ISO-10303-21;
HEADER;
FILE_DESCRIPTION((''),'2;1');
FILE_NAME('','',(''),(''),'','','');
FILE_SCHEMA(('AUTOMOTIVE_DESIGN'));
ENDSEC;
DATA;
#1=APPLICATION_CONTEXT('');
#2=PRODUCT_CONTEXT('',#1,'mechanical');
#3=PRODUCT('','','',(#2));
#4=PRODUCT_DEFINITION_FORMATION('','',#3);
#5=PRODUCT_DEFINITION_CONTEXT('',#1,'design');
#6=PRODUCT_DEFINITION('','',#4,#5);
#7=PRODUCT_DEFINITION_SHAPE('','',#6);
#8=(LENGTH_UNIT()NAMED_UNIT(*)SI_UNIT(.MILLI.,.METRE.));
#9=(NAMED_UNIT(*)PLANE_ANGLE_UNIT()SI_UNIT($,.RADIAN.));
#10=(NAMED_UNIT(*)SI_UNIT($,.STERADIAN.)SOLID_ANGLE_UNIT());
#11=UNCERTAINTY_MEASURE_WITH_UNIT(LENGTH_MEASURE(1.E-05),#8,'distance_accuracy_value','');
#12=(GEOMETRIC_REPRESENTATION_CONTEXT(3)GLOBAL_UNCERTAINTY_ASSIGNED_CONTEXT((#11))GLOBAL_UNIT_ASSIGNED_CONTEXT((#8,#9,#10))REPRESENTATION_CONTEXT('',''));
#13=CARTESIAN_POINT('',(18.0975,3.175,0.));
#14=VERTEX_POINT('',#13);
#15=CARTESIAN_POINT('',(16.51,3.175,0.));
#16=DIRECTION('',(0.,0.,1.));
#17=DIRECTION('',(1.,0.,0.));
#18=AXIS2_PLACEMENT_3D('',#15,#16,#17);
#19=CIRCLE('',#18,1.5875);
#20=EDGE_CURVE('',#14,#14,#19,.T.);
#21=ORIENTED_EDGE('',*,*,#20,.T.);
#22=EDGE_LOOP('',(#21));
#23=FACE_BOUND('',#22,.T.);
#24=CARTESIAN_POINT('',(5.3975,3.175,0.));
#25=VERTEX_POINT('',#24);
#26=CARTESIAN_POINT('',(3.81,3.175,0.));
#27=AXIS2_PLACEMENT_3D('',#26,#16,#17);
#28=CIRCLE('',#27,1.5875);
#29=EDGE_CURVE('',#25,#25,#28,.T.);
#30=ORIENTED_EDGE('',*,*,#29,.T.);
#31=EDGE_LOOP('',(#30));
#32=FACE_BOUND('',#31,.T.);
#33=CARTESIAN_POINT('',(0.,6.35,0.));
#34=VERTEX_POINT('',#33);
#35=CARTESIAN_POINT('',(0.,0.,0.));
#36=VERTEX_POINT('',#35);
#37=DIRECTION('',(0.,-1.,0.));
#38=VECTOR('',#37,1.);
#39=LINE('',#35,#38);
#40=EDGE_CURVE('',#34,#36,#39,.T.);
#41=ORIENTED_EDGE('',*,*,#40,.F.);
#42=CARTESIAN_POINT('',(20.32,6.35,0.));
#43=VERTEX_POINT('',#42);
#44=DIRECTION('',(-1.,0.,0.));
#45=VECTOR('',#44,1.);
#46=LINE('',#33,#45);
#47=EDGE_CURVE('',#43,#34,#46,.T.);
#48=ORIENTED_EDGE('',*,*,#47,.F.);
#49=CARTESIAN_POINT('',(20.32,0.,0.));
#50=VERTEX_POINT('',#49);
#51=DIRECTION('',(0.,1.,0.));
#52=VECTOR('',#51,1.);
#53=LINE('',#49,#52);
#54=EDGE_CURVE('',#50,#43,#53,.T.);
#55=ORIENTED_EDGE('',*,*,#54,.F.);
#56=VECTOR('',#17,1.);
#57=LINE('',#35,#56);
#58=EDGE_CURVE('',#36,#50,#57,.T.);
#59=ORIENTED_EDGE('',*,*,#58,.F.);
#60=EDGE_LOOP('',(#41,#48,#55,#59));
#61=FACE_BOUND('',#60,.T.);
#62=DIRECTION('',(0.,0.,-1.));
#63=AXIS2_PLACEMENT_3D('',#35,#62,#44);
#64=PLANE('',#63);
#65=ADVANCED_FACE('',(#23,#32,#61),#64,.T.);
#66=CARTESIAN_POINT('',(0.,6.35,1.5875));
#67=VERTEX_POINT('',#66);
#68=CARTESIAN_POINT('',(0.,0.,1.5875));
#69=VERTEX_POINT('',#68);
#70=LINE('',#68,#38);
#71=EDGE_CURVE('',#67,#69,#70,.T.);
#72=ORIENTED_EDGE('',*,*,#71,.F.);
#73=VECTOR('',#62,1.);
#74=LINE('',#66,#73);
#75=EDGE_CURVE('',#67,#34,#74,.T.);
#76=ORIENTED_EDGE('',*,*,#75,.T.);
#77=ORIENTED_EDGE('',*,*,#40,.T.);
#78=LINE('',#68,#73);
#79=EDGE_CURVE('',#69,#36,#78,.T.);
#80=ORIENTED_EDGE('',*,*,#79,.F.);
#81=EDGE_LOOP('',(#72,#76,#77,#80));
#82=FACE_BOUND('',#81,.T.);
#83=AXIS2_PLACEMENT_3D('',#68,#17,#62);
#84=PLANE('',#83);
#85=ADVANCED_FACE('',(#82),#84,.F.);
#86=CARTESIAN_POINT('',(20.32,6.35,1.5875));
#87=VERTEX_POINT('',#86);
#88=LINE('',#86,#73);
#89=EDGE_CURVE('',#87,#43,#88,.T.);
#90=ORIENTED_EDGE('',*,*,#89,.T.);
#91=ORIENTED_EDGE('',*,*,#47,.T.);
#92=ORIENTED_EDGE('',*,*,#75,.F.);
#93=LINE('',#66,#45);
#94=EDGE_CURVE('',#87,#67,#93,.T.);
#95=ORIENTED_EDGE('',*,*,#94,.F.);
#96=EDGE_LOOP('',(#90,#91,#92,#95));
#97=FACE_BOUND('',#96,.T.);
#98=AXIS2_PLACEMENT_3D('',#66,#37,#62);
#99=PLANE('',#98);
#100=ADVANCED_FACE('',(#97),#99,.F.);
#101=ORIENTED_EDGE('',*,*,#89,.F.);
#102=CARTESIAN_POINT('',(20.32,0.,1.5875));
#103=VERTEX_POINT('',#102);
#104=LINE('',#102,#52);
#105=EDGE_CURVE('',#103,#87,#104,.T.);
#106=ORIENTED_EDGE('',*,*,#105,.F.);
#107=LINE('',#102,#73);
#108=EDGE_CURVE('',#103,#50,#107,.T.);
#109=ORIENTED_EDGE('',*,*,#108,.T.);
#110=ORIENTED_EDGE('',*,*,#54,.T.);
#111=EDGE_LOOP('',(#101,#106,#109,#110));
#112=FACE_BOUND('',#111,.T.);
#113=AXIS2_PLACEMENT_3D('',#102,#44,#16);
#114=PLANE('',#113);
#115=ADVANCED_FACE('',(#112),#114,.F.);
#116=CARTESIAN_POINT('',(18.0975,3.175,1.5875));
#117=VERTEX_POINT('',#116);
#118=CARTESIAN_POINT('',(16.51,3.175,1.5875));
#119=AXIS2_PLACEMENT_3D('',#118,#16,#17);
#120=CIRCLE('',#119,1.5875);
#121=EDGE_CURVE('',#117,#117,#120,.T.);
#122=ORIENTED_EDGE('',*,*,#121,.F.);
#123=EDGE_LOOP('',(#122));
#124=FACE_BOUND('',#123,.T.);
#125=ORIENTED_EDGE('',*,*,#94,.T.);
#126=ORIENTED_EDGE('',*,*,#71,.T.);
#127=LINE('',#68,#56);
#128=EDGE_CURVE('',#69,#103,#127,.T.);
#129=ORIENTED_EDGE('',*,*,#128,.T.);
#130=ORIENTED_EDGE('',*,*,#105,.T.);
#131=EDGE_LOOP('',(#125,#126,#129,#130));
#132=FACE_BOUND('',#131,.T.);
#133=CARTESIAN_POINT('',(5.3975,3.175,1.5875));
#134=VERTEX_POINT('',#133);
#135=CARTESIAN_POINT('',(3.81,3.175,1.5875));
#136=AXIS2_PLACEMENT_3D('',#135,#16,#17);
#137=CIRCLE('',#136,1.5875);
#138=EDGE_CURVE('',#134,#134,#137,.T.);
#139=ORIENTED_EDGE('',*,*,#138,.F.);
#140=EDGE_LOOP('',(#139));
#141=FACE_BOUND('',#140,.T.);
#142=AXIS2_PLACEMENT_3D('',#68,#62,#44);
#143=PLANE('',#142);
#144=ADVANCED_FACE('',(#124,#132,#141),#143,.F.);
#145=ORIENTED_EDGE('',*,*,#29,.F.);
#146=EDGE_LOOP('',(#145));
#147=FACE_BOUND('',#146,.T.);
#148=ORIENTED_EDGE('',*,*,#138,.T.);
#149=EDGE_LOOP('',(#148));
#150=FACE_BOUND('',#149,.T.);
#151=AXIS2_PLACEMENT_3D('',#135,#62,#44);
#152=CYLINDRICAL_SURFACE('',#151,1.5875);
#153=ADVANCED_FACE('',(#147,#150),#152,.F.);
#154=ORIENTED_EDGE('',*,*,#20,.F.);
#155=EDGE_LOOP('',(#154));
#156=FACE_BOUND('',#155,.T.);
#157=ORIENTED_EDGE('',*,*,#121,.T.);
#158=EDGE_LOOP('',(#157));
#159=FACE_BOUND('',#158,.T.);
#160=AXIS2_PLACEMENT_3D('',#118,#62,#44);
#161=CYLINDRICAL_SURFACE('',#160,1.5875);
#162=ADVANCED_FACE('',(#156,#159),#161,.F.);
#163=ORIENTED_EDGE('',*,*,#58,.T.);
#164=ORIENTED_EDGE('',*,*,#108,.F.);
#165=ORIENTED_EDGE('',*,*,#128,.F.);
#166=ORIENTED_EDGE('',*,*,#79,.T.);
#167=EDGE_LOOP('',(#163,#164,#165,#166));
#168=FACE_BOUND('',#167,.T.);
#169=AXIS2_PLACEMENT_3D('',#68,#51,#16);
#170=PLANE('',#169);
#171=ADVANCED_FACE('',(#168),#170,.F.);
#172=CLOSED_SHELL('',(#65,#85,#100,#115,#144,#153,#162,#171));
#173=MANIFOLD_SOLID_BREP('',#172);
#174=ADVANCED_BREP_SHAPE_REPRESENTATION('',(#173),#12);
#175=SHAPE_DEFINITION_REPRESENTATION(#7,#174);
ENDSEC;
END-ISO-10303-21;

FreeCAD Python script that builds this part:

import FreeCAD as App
import Part
import Sketcher
Q = App.Units.Quantity

doc = App.newDocument("Part")
params = doc.addObject("Spreadsheet::Sheet", "Params")
for row, (alias, value) in enumerate([
    ("sketch1_diameter", "0.125 in"),
    ("sketch1_width", "0.8 in"),
    ("sketch1_height", "0.25 in"),
    ("pad1_length", "0.0625 in"),
], start=1):
    params.set(f"A{row}", alias)
    params.set(f"B{row}", "=" + value)
    params.setAlias(f"B{row}", alias)

body = doc.addObject("PartDesign::Body", "Body")

# Sketch on XY plane
sketch1 = body.newObject("Sketcher::SketchObject", "Sketch")
sketch1.AttachmentSupport = (doc.getObject("XY_Plane"), [""])
sketch1.MapMode = "FlatFace"
sketch1.addGeometry(Part.LineSegment(App.Vector(0, 6.3, 0), App.Vector(0, 0, 0)), False)
sketch1.addGeometry(Part.LineSegment(App.Vector(0, 0, 0), App.Vector(20.3, 0, 0)), False)
sketch1.addGeometry(Part.LineSegment(App.Vector(20.3, 0, 0), App.Vector(20.3, 6.3, 0)), False)
sketch1.addGeometry(Part.LineSegment(App.Vector(20.3, 6.3, 0), App.Vector(0, 6.3, 0)), False)
sketch1.addGeometry(Part.Circle(App.Vector(3.8, 3.2, 0), App.Vector(0, 0, 1), 1.6), False)
sketch1.addGeometry(Part.Circle(App.Vector(16.5, 3.2, 0), App.Vector(0, 0, 1), 1.6), False)
sketch1.addConstraint(Sketcher.Constraint("Coincident", 0, 2, 1, 1))
sketch1.addConstraint(Sketcher.Constraint("Coincident", 1, 2, 2, 1))
sketch1.addConstraint(Sketcher.Constraint("Coincident", 2, 2, 3, 1))
sketch1.addConstraint(Sketcher.Constraint("Coincident", 3, 2, 0, 1))
sketch1.addConstraint(Sketcher.Constraint("Vertical", 0))
sketch1.addConstraint(Sketcher.Constraint("Horizontal", 1))
sketch1.addConstraint(Sketcher.Constraint("Vertical", 2))
sketch1.addConstraint(Sketcher.Constraint("Horizontal", 3))
sketch1.addConstraint(Sketcher.Constraint("Coincident", 0, 2, -1, 1))
sketch1.addConstraint(Sketcher.Constraint("Equal", 4, 5))
sketch1.addConstraint(Sketcher.Constraint("Horizontal", 4, 3, 5, 3))
sketch1.addConstraint(Sketcher.Constraint("Diameter", 4, Q("0.125 in")))
sketch1.addConstraint(Sketcher.Constraint("DistanceX", 1, 1, 1, 2, Q("0.8 in")))
sketch1.addConstraint(Sketcher.Constraint("DistanceY", 0, 2, 0, 1, Q("0.25 in")))
sketch1.addConstraint(Sketcher.Constraint("DistanceX", 4, 3, 5, 3, Q("0.5 in")))
sketch1.addConstraint(Sketcher.Constraint("DistanceX", -1, 1, 4, 3, Q("0.15 in")))
sketch1.addConstraint(Sketcher.Constraint("DistanceY", -1, 1, 4, 3, Q("0.125 in")))
sketch1.setExpression("Constraints[11]", "Params.sketch1_diameter")
sketch1.setExpression("Constraints[12]", "Params.sketch1_width")
sketch1.setExpression("Constraints[13]", "Params.sketch1_height")
pad1 = body.newObject("PartDesign::Pad", "Pad")
pad1.Profile = sketch1
pad1.setExpression("Length", "Params.pad1_length")

doc.recompute()
